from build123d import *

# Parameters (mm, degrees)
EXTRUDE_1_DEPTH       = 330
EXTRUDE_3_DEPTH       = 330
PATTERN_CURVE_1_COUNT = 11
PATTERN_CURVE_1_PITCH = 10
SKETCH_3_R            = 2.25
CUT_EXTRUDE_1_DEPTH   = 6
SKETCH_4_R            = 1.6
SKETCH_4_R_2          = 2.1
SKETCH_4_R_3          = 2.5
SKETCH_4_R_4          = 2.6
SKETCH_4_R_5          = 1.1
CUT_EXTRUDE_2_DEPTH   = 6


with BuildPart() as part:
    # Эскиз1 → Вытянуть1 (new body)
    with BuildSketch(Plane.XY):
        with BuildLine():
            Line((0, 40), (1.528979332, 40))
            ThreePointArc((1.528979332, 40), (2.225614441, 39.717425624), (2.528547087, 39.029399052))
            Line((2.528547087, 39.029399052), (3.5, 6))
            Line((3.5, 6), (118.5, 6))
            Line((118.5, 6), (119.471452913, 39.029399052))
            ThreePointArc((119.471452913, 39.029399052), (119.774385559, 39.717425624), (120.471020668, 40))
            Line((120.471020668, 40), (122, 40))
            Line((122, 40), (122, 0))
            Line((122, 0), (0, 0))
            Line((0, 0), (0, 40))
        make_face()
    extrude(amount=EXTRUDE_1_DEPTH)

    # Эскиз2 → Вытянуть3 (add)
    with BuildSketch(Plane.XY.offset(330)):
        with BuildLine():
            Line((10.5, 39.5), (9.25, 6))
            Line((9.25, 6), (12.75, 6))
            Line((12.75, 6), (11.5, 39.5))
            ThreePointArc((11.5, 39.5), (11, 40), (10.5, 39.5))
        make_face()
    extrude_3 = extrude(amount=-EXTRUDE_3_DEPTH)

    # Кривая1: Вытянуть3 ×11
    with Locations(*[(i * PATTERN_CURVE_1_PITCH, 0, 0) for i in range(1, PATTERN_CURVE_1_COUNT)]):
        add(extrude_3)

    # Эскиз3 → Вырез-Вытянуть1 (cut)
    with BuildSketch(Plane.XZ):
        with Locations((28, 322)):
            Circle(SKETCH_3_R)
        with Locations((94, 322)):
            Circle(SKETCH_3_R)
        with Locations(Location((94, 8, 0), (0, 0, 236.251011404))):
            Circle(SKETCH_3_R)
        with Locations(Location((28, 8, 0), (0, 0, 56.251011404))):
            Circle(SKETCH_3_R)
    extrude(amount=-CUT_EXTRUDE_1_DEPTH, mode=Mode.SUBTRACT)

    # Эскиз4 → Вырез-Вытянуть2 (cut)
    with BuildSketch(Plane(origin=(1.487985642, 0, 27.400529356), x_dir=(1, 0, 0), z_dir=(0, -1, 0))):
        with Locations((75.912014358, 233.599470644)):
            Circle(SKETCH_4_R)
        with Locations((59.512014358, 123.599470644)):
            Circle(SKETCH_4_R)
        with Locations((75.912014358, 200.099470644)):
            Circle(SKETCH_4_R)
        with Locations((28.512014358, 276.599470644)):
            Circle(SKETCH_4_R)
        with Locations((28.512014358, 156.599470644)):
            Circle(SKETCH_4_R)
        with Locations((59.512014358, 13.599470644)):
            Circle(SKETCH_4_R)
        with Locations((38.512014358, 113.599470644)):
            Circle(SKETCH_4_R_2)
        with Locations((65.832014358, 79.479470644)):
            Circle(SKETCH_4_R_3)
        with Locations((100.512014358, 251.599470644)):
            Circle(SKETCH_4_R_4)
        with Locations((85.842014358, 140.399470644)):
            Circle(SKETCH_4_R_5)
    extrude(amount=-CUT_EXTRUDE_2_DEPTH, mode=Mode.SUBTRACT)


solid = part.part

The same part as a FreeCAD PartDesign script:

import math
import FreeCAD as App
import Part
import Sketcher
from FreeCAD import Vector

doc = App.newDocument("Part")
body = doc.addObject("PartDesign::Body", "Body")

# Sketch on XY plane
sketch1 = body.newObject("Sketcher::SketchObject", "Sketch")
sketch1.AttachmentSupport = (doc.getObject("XY_Plane"), [""])
sketch1.MapMode = "FlatFace"
sketch1.addGeometry([
    Part.LineSegment(Vector(1.5, 40, 0), Vector(0, 40, 0)),  # 0
    Part.LineSegment(Vector(0, 40, 0), Vector(0, 0, 0)),  # 1
    Part.LineSegment(Vector(0, 0, 0), Vector(122, 0, 0)),  # 2
    Part.LineSegment(Vector(122, 0, 0), Vector(122, 40, 0)),  # 3
    Part.LineSegment(Vector(122, 40, 0), Vector(120.5, 40, 0)),  # 4
    Part.ArcOfCircle(Part.Circle(Vector(120.5, 39, 0), Vector(0, 0, 1), 1), math.radians(90), math.radians(178)),  # 5
    Part.LineSegment(Vector(119.5, 39, 0), Vector(118.5, 6, 0)),  # 6
    Part.LineSegment(Vector(118.5, 6, 0), Vector(3.5, 6, 0)),  # 7
    Part.LineSegment(Vector(3.5, 6, 0), Vector(2.5, 39, 0)),  # 8
    Part.ArcOfCircle(Part.Circle(Vector(1.5, 39, 0), Vector(0, 0, 1), 1), math.radians(2), math.radians(90)),  # 9
], False)
sketch1.addConstraint([
    Sketcher.Constraint("Coincident", 0, 2, 1, 1),
    Sketcher.Constraint("Coincident", 1, 2, 2, 1),
    Sketcher.Constraint("Coincident", 2, 2, 3, 1),
    Sketcher.Constraint("Coincident", 3, 2, 4, 1),
    Sketcher.Constraint("Tangent", 4, 2, 5, 1),
    Sketcher.Constraint("Tangent", 5, 2, 6, 1),
    Sketcher.Constraint("Coincident", 6, 2, 7, 1),
    Sketcher.Constraint("Coincident", 7, 2, 8, 1),
    Sketcher.Constraint("Tangent", 8, 2, 9, 1),
    Sketcher.Constraint("Tangent", 9, 2, 0, 1),
    Sketcher.Constraint("Horizontal", 0),
    Sketcher.Constraint("Vertical", 1),
    Sketcher.Constraint("Horizontal", 2),
    Sketcher.Constraint("Vertical", 3),
    Sketcher.Constraint("Horizontal", 4),
    Sketcher.Constraint("Horizontal", 7),
    Sketcher.Constraint("Coincident", 1, 2, -1, 1),
    Sketcher.Constraint("Equal", 5, 9),
    Sketcher.Constraint("Horizontal", 5, 3, 9, 3),
    Sketcher.Constraint("Horizontal", 5, 2, 8, 2),
    Sketcher.Constraint("Equal", 0, 4),
    Sketcher.Constraint("Radius", 5, 1.0),
    Sketcher.Constraint("DistanceX", 2, 1, 2, 2, 122.0),
    Sketcher.Constraint("DistanceX", 7, 2, 7, 1, 115.0),
    Sketcher.Constraint("DistanceY", 1, 2, 1, 1, 40.0),
    Sketcher.Constraint("DistanceY", -1, 1, 6, 2, 6.0),
    Sketcher.Constraint("DistanceX", 0, 2, 0, 1, 1.528979),
])
pad1 = body.newObject("PartDesign::Pad", "Pad")
pad1.Profile = sketch1
pad1.Length = 330

# Sketch on XY plane
sketch2 = body.newObject("Sketcher::SketchObject", "Sketch001")
sketch2.AttachmentSupport = (doc.getObject("XY_Plane"), [""])
sketch2.MapMode = "FlatFace"
sketch2.AttachmentOffset = App.Placement(Vector(0, 0, 330), App.Rotation())
sketch2.addGeometry([
    Part.LineSegment(Vector(10.5, 39.5, 0), Vector(9.2, 6, 0)),
    Part.LineSegment(Vector(9.2, 6, 0), Vector(12.8, 6, 0)),
    Part.LineSegment(Vector(12.8, 6, 0), Vector(11.5, 39.5, 0)),
    Part.ArcOfCircle(Part.Circle(Vector(11, 39.5, 0), Vector(0, 0, 1), 0.5), math.radians(0), math.radians(180)),
], False)
sketch2.addConstraint([
    Sketcher.Constraint("Coincident", 0, 2, 1, 1),
    Sketcher.Constraint("Coincident", 1, 2, 2, 1),
    Sketcher.Constraint("Coincident", 2, 2, 3, 1),
    Sketcher.Constraint("Coincident", 3, 2, 0, 1),
    Sketcher.Constraint("Horizontal", 1),
    Sketcher.Constraint("Horizontal", 3, 3, 2, 2),
    Sketcher.Constraint("Horizontal", 2, 2, 3, 2),
    Sketcher.Constraint("Equal", 0, 2),
    Sketcher.Constraint("Radius", 3, 0.5),
    Sketcher.Constraint("DistanceX", 1, 1, 1, 2, 3.5),
    Sketcher.Constraint("DistanceX", -1, 1, 3, 3, 11.0),
    Sketcher.Constraint("DistanceY", -1, 1, 0, 2, 6.0),
    Sketcher.Constraint("DistanceY", -1, 1, 3, 3, 39.5),
])
pad2 = body.newObject("PartDesign::Pad", "Pad001")
pad2.Profile = sketch2
pad2.Length = 330
pad2.Reversed = True
doc.recompute()

linearpattern = body.newObject("PartDesign::LinearPattern", "LinearPattern")
linearpattern.Originals = [pad2]
linearpattern.Direction = (doc.getObject("X_Axis"), [""])
linearpattern.Mode = "offset"
linearpattern.Offset = 10
linearpattern.Occurrences = 11
body.Tip = linearpattern

# Sketch on XZ plane
sketch3 = body.newObject("Sketcher::SketchObject", "Sketch002")
sketch3.AttachmentSupport = (doc.getObject("XZ_Plane"), [""])
sketch3.MapMode = "FlatFace"
sketch3.addGeometry([
    Part.Circle(Vector(28, 322, 0), Vector(0, 0, 1), 2.2),
    Part.Circle(Vector(94, 322, 0), Vector(0, 0, 1), 2.2),
    Part.Circle(Vector(94, 8, 0), Vector(0, 0, 1), 2.2),
    Part.Circle(Vector(28, 8, 0), Vector(0, 0, 1), 2.2),
], False)
sketch3.addConstraint([
    Sketcher.Constraint("Equal", 0, 1),
    Sketcher.Constraint("Equal", 1, 2),
    Sketcher.Constraint("Equal", 2, 3),
    Sketcher.Constraint("Horizontal", 0, 3, 1, 3),
    Sketcher.Constraint("Horizontal", 2, 3, 3, 3),
    Sketcher.Constraint("Vertical", 1, 3, 2, 3),
    Sketcher.Constraint("Vertical", 0, 3, 3, 3),
    Sketcher.Constraint("Diameter", 0, 4.5),
    Sketcher.Constraint("DistanceX", -1, 1, 0, 3, 28.0),
    Sketcher.Constraint("DistanceY", -1, 1, 0, 3, 322.0),
    Sketcher.Constraint("DistanceX", -1, 1, 1, 3, 94.0),
    Sketcher.Constraint("DistanceY", -1, 1, 2, 3, 8.0),
])
pocket1 = body.newObject("PartDesign::Pocket", "Pocket")
pocket1.Profile = sketch3
pocket1.Length = 6

# Sketch on XZ plane
sketch4 = body.newObject("Sketcher::SketchObject", "Sketch003")
sketch4.AttachmentSupport = (doc.getObject("XZ_Plane"), [""])
sketch4.MapMode = "FlatFace"
sketch4.addGeometry([
    Part.Circle(Vector(77.4, 261, 0), Vector(0, 0, 1), 1.6),  # 0
    Part.Circle(Vector(61, 151, 0), Vector(0, 0, 1), 1.6),  # 1
    Part.Circle(Vector(77.4, 227.5, 0), Vector(0, 0, 1), 1.6),  # 2
    Part.Circle(Vector(30, 304, 0), Vector(0, 0, 1), 1.6),  # 3
    Part.Circle(Vector(30, 184, 0), Vector(0, 0, 1), 1.6),  # 4
    Part.Circle(Vector(61, 41, 0), Vector(0, 0, 1), 1.6),  # 5
    Part.Circle(Vector(40, 141, 0), Vector(0, 0, 1), 2.1),  # 6
    Part.Circle(Vector(67.3, 106.9, 0), Vector(0, 0, 1), 2.5),  # 7
    Part.Circle(Vector(102, 279, 0), Vector(0, 0, 1), 2.6),  # 8
    Part.Circle(Vector(87.3, 167.8, 0), Vector(0, 0, 1), 1.1),  # 9
], False)
sketch4.addConstraint([
    Sketcher.Constraint("Equal", 0, 1),
    Sketcher.Constraint("Equal", 1, 2),
    Sketcher.Constraint("Equal", 2, 3),
    Sketcher.Constraint("Equal", 3, 4),
    Sketcher.Constraint("Equal", 4, 5),
    Sketcher.Constraint("Vertical", 0, 3, 2, 3),
    Sketcher.Constraint("Vertical", 3, 3, 4, 3),
    Sketcher.Constraint("Vertical", 1, 3, 5, 3),
    Sketcher.Constraint("Diameter", 7, 5.0),
    Sketcher.Constraint("Diameter", 0, 3.2),
    Sketcher.Constraint("Diameter", 6, 4.2),
    Sketcher.Constraint("Diameter", 8, 5.2),
    Sketcher.Constraint("Diameter", 9, 2.2),
    Sketcher.Constraint("DistanceY", -1, 1, 0, 3, 261.0),
    Sketcher.Constraint("DistanceX", -1, 1, 1, 3, 61.0),
    Sketcher.Constraint("DistanceY", -1, 1, 1, 3, 151.0),
    Sketcher.Constraint("DistanceX", -1, 1, 3, 3, 30.0),
    Sketcher.Constraint("DistanceY", -1, 1, 3, 3, 304.0),
    Sketcher.Constraint("DistanceY", -1, 1, 4, 3, 184.0),
    Sketcher.Constraint("DistanceY", -1, 1, 5, 3, 41.0),
    Sketcher.Constraint("DistanceX", -1, 1, 6, 3, 40.0),
    Sketcher.Constraint("DistanceY", -1, 1, 6, 3, 141.0),
    Sketcher.Constraint("DistanceX", -1, 1, 8, 3, 102.0),
    Sketcher.Constraint("DistanceY", -1, 1, 8, 3, 279.0),
    Sketcher.Constraint("DistanceX", -1, 1, 0, 3, 77.4),
    Sketcher.Constraint("DistanceY", -1, 1, 2, 3, 227.5),
    Sketcher.Constraint("DistanceY", -1, 1, 9, 3, 167.8),
    Sketcher.Constraint("DistanceX", -1, 1, 7, 3, 67.32),
    Sketcher.Constraint("DistanceY", -1, 1, 7, 3, 106.88),
    Sketcher.Constraint("DistanceX", -1, 1, 9, 3, 87.33),
])
pocket2 = body.newObject("PartDesign::Pocket", "Pocket001")
pocket2.Profile = sketch4
pocket2.Length = 6

doc.recompute()
